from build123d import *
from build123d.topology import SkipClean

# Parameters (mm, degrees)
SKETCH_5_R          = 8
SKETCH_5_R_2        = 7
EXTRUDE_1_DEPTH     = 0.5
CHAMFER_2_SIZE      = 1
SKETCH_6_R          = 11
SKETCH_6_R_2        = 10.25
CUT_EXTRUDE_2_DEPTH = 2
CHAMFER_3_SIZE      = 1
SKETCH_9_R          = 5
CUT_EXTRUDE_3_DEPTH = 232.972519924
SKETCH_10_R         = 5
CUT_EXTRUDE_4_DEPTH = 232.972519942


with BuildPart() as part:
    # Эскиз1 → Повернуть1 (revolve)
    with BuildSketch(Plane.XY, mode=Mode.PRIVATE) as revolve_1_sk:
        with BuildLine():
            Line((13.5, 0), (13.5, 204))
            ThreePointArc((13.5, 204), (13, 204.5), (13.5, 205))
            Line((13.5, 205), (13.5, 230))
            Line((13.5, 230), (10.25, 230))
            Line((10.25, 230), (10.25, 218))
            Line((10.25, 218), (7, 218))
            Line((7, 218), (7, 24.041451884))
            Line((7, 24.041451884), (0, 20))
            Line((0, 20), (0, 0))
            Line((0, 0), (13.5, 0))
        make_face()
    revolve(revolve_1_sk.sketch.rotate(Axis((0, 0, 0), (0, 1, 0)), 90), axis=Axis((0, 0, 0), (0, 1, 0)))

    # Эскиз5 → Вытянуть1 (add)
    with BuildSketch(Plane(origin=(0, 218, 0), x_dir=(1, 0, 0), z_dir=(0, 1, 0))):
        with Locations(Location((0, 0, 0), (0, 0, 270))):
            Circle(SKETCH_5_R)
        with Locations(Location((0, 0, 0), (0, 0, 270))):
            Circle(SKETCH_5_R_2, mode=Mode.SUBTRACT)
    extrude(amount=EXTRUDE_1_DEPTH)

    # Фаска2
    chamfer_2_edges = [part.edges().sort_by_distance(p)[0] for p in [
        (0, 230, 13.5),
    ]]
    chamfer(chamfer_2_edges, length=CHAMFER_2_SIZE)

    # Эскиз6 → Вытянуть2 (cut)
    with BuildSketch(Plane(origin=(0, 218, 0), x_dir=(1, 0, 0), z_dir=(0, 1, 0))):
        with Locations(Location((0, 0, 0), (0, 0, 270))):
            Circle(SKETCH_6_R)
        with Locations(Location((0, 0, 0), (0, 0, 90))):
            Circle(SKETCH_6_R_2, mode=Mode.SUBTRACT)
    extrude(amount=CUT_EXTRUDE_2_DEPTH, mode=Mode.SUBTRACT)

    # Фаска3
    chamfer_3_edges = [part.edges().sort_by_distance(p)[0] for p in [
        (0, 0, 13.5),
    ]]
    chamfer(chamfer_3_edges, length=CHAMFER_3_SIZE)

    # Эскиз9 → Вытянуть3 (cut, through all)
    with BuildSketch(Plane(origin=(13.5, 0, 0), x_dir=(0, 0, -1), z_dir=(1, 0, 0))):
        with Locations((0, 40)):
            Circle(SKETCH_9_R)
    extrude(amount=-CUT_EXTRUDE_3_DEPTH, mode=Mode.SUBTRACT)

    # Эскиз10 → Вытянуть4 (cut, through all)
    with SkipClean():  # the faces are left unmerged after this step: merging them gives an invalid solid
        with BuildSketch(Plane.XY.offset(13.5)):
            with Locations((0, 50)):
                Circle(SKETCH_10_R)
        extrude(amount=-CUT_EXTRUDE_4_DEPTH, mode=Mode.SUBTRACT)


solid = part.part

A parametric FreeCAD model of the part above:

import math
import FreeCAD as App
import Part
import Sketcher
from FreeCAD import Vector
Q = App.Units.Quantity


def edges_at(feature, points):
    """Names of the edges that pass closest to the given points."""
    edges = feature.Shape.Edges
    near = lambda p: min(range(len(edges)), key=lambda i: edges[i].distToShape(Part.Vertex(*p))[0])
    return sorted({f"Edge{near(p) + 1}" for p in points})

doc = App.newDocument("Part")
params = doc.addObject("Spreadsheet::Sheet", "Params")
for row, (alias, value) in enumerate([
    ("sketch1_radius", "0.5 mm"),
    ("sketch1_height", "204 mm"),
    ("sketch1_height2", "25 mm"),
    ("sketch1_height3", "12 mm"),
    ("sketch1_height4", "20 mm"),
    ("revolution_angle", "360 deg"),
    ("sketch2_diameter", "16 mm"),
    ("sketch2_diameter2", "14 mm"),
    ("pad1_length", "0.5 mm"),
    ("chamfer_size", "1 mm"),
    ("sketch3_diameter", "22 mm"),
    ("sketch3_diameter2", "20.5 mm"),
    ("pocket1_length", "2 mm"),
    ("chamfer2_size", "1 mm"),
    ("sketch4_diameter", "10 mm"),
    ("sketch5_diameter", "10 mm"),
], start=1):
    params.set(f"A{row}", alias)
    params.set(f"B{row}", "=" + value)
    params.setAlias(f"B{row}", alias)

body = doc.addObject("PartDesign::Body", "Body")

sketch1 = body.newObject("Sketcher::SketchObject", "Sketch")
sketch1.AttachmentSupport = (doc.getObject("XY_Plane"), [""])
sketch1.MapMode = "FlatFace"
sketch1.addGeometry(Part.LineSegment(Vector(13.5, 0, 0), Vector(13.5, 204, 0)), False)
sketch1.addGeometry(Part.ArcOfCircle(Part.Circle(Vector(13.5, 204.5, 0), Vector(0, 0, 1), 0.5), math.radians(90), math.radians(270)), False)
sketch1.addGeometry(Part.LineSegment(Vector(13.5, 205, 0), Vector(13.5, 230, 0)), False)
sketch1.addGeometry(Part.LineSegment(Vector(13.5, 230, 0), Vector(10.2, 230, 0)), False)
sketch1.addGeometry(Part.LineSegment(Vector(10.2, 230, 0), Vector(10.2, 218, 0)), False)
sketch1.addGeometry(Part.LineSegment(Vector(10.2, 218, 0), Vector(7, 218, 0)), False)
sketch1.addGeometry(Part.LineSegment(Vector(7, 218, 0), Vector(7, 24, 0)), False)
sketch1.addGeometry(Part.LineSegment(Vector(7, 24, 0), Vector(0, 20, 0)), False)
sketch1.addGeometry(Part.LineSegment(Vector(0, 20, 0), Vector(0, 0, 0)), False)
sketch1.addGeometry(Part.LineSegment(Vector(0, 0, 0), Vector(13.5, 0, 0)), False)
sketch1.addConstraint(Sketcher.Constraint("Coincident", 0, 2, 1, 2))
sketch1.addConstraint(Sketcher.Constraint("Coincident", 1, 1, 2, 1))
sketch1.addConstraint(Sketcher.Constraint("Coincident", 2, 2, 3, 1))
sketch1.addConstraint(Sketcher.Constraint("Coincident", 3, 2, 4, 1))
sketch1.addConstraint(Sketcher.Constraint("Coincident", 4, 2, 5, 1))
sketch1.addConstraint(Sketcher.Constraint("Coincident", 5, 2, 6, 1))
sketch1.addConstraint(Sketcher.Constraint("Coincident", 6, 2, 7, 1))
sketch1.addConstraint(Sketcher.Constraint("Coincident", 7, 2, 8, 1))
sketch1.addConstraint(Sketcher.Constraint("Coincident", 8, 2, 9, 1))
sketch1.addConstraint(Sketcher.Constraint("Coincident", 9, 2, 0, 1))
sketch1.addConstraint(Sketcher.Constraint("Vertical", 0))
sketch1.addConstraint(Sketcher.Constraint("Vertical", 2))
sketch1.addConstraint(Sketcher.Constraint("Horizontal", 3))
sketch1.addConstraint(Sketcher.Constraint("Vertical", 4))
sketch1.addConstraint(Sketcher.Constraint("Horizontal", 5))
sketch1.addConstraint(Sketcher.Constraint("Vertical", 6))
sketch1.addConstraint(Sketcher.Constraint("Vertical", 8))
sketch1.addConstraint(Sketcher.Constraint("Horizontal", 9))
sketch1.addConstraint(Sketcher.Constraint("Coincident", 8, 2, -1, 1))
sketch1.addConstraint(Sketcher.Constraint("Vertical", 1, 3, 0, 2))
sketch1.addConstraint(Sketcher.Constraint("Vertical", 0, 2, 1, 1))
sketch1.addConstraint(Sketcher.Constraint("Equal", 3, 5))
sketch1.addConstraint(Sketcher.Constraint("Radius", 1, 0.5))
sketch1.addConstraint(Sketcher.Constraint("DistanceY", 0, 1, 0, 2, 204.0))
sketch1.addConstraint(Sketcher.Constraint("DistanceY", 2, 1, 2, 2, 25.0))
sketch1.addConstraint(Sketcher.Constraint("DistanceY", 4, 2, 4, 1, 12.0))
sketch1.addConstraint(Sketcher.Constraint("DistanceY", 8, 2, 8, 1, 20.0))
sketch1.addConstraint(Sketcher.Constraint("Angle", 7, Q("-150 deg")))
sketch1.addConstraint(Sketcher.Constraint("DistanceX", 9, 1, 9, 2, 13.5))
sketch1.addConstraint(Sketcher.Constraint("DistanceX", -1, 1, 5, 2, 7.0))
sketch1.setExpression("Constraints[22]", "Params.sketch1_radius")
sketch1.setExpression("Constraints[23]", "Params.sketch1_height")
sketch1.setExpression("Constraints[24]", "Params.sketch1_height2")
sketch1.setExpression("Constraints[25]", "Params.sketch1_height3")
sketch1.setExpression("Constraints[26]", "Params.sketch1_height4")
revolution = body.newObject("PartDesign::Revolution", "Revolution")
revolution.Profile = sketch1
revolution.ReferenceAxis = (sketch1, ["V_Axis"])
revolution.setExpression("Angle", "Params.revolution_angle")

sketch2 = body.newObject("Sketcher::SketchObject", "Sketch001")
sketch2.AttachmentSupport = (doc.getObject("XZ_Plane"), [""])
sketch2.MapMode = "FlatFace"
sketch2.AttachmentOffset = App.Placement(Vector(0, 0, -218), App.Rotation())
sketch2.addGeometry(Part.Circle(Vector(0, 0, 0), Vector(0, 0, 1), 8), False)
sketch2.addGeometry(Part.Circle(Vector(0, 0, 0), Vector(0, 0, 1), 7), False)
sketch2.addConstraint(Sketcher.Constraint("Coincident", 0, 3, -1, 1))
sketch2.addConstraint(Sketcher.Constraint("Coincident", 1, 3, -1, 1))
sketch2.addConstraint(Sketcher.Constraint("Diameter", 0, 16.0))
sketch2.addConstraint(Sketcher.Constraint("Diameter", 1, 14.0))
sketch2.setExpression("Constraints[2]", "Params.sketch2_diameter")
sketch2.setExpression("Constraints[3]", "Params.sketch2_diameter2")
pad1 = body.newObject("PartDesign::Pad", "Pad")
pad1.Profile = sketch2
pad1.setExpression("Length", "Params.pad1_length")
pad1.Reversed = True
doc.recompute()

chamfer = body.newObject("PartDesign::Chamfer", "Chamfer")
chamfer.Base = (pad1, edges_at(pad1, [(0, 230, 13.5)]))
chamfer.setExpression("Size", "Params.chamfer_size")

sketch3 = body.newObject("Sketcher::SketchObject", "Sketch002")
sketch3.AttachmentSupport = (doc.getObject("XZ_Plane"), [""])
sketch3.MapMode = "FlatFace"
sketch3.AttachmentOffset = App.Placement(Vector(0, 0, -218), App.Rotation())
sketch3.addGeometry(Part.Circle(Vector(0, 0, 0), Vector(0, 0, 1), 11), False)
sketch3.addGeometry(Part.Circle(Vector(0, 0, 0), Vector(0, 0, 1), 10), False)
sketch3.addConstraint(Sketcher.Constraint("Coincident", 0, 3, -1, 1))
sketch3.addConstraint(Sketcher.Constraint("Coincident", 1, 3, -1, 1))
sketch3.addConstraint(Sketcher.Constraint("Diameter", 0, 22.0))
sketch3.addConstraint(Sketcher.Constraint("Diameter", 1, 20.5))
sketch3.setExpression("Constraints[2]", "Params.sketch3_diameter")
sketch3.setExpression("Constraints[3]", "Params.sketch3_diameter2")
pocket1 = body.newObject("PartDesign::Pocket", "Pocket")
pocket1.Profile = sketch3
pocket1.setExpression("Length", "Params.pocket1_length")
doc.recompute()

chamfer2 = body.newObject("PartDesign::Chamfer", "Chamfer001")
chamfer2.Base = (pocket1, edges_at(pocket1, [(0, 0, 13.5)]))
chamfer2.setExpression("Size", "Params.chamfer2_size")

sketch4 = body.newObject("Sketcher::SketchObject", "Sketch003")
sketch4.AttachmentSupport = (doc.getObject("YZ_Plane"), [""])
sketch4.MapMode = "FlatFace"
sketch4.AttachmentOffset = App.Placement(Vector(0, 0, 13.5), App.Rotation())
sketch4.addGeometry(Part.Circle(Vector(40, 0, 0), Vector(0, 0, 1), 5), False)
sketch4.addConstraint(Sketcher.Constraint("PointOnObject", 0, 3, -1))
sketch4.addConstraint(Sketcher.Constraint("Diameter", 0, 10.0))
sketch4.addConstraint(Sketcher.Constraint("DistanceX", -1, 1, 0, 3, 40.0))
sketch4.setExpression("Constraints[1]", "Params.sketch4_diameter")
pocket2 = body.newObject("PartDesign::Pocket", "Pocket001")
pocket2.Profile = sketch4
pocket2.Type = "ThroughAll"

sketch5 = body.newObject("Sketcher::SketchObject", "Sketch004")
sketch5.AttachmentSupport = (doc.getObject("XY_Plane"), [""])
sketch5.MapMode = "FlatFace"
sketch5.AttachmentOffset = App.Placement(Vector(0, 0, 13.5), App.Rotation())
sketch5.addGeometry(Part.Circle(Vector(0, 50, 0), Vector(0, 0, 1), 5), False)
sketch5.addConstraint(Sketcher.Constraint("PointOnObject", 0, 3, -2))
sketch5.addConstraint(Sketcher.Constraint("Diameter", 0, 10.0))
sketch5.addConstraint(Sketcher.Constraint("DistanceY", -1, 1, 0, 3, 50.0))
sketch5.setExpression("Constraints[1]", "Params.sketch5_diameter")
pocket3 = body.newObject("PartDesign::Pocket", "Pocket002")
pocket3.Profile = sketch5
pocket3.Type = "ThroughAll"

doc.recompute()
